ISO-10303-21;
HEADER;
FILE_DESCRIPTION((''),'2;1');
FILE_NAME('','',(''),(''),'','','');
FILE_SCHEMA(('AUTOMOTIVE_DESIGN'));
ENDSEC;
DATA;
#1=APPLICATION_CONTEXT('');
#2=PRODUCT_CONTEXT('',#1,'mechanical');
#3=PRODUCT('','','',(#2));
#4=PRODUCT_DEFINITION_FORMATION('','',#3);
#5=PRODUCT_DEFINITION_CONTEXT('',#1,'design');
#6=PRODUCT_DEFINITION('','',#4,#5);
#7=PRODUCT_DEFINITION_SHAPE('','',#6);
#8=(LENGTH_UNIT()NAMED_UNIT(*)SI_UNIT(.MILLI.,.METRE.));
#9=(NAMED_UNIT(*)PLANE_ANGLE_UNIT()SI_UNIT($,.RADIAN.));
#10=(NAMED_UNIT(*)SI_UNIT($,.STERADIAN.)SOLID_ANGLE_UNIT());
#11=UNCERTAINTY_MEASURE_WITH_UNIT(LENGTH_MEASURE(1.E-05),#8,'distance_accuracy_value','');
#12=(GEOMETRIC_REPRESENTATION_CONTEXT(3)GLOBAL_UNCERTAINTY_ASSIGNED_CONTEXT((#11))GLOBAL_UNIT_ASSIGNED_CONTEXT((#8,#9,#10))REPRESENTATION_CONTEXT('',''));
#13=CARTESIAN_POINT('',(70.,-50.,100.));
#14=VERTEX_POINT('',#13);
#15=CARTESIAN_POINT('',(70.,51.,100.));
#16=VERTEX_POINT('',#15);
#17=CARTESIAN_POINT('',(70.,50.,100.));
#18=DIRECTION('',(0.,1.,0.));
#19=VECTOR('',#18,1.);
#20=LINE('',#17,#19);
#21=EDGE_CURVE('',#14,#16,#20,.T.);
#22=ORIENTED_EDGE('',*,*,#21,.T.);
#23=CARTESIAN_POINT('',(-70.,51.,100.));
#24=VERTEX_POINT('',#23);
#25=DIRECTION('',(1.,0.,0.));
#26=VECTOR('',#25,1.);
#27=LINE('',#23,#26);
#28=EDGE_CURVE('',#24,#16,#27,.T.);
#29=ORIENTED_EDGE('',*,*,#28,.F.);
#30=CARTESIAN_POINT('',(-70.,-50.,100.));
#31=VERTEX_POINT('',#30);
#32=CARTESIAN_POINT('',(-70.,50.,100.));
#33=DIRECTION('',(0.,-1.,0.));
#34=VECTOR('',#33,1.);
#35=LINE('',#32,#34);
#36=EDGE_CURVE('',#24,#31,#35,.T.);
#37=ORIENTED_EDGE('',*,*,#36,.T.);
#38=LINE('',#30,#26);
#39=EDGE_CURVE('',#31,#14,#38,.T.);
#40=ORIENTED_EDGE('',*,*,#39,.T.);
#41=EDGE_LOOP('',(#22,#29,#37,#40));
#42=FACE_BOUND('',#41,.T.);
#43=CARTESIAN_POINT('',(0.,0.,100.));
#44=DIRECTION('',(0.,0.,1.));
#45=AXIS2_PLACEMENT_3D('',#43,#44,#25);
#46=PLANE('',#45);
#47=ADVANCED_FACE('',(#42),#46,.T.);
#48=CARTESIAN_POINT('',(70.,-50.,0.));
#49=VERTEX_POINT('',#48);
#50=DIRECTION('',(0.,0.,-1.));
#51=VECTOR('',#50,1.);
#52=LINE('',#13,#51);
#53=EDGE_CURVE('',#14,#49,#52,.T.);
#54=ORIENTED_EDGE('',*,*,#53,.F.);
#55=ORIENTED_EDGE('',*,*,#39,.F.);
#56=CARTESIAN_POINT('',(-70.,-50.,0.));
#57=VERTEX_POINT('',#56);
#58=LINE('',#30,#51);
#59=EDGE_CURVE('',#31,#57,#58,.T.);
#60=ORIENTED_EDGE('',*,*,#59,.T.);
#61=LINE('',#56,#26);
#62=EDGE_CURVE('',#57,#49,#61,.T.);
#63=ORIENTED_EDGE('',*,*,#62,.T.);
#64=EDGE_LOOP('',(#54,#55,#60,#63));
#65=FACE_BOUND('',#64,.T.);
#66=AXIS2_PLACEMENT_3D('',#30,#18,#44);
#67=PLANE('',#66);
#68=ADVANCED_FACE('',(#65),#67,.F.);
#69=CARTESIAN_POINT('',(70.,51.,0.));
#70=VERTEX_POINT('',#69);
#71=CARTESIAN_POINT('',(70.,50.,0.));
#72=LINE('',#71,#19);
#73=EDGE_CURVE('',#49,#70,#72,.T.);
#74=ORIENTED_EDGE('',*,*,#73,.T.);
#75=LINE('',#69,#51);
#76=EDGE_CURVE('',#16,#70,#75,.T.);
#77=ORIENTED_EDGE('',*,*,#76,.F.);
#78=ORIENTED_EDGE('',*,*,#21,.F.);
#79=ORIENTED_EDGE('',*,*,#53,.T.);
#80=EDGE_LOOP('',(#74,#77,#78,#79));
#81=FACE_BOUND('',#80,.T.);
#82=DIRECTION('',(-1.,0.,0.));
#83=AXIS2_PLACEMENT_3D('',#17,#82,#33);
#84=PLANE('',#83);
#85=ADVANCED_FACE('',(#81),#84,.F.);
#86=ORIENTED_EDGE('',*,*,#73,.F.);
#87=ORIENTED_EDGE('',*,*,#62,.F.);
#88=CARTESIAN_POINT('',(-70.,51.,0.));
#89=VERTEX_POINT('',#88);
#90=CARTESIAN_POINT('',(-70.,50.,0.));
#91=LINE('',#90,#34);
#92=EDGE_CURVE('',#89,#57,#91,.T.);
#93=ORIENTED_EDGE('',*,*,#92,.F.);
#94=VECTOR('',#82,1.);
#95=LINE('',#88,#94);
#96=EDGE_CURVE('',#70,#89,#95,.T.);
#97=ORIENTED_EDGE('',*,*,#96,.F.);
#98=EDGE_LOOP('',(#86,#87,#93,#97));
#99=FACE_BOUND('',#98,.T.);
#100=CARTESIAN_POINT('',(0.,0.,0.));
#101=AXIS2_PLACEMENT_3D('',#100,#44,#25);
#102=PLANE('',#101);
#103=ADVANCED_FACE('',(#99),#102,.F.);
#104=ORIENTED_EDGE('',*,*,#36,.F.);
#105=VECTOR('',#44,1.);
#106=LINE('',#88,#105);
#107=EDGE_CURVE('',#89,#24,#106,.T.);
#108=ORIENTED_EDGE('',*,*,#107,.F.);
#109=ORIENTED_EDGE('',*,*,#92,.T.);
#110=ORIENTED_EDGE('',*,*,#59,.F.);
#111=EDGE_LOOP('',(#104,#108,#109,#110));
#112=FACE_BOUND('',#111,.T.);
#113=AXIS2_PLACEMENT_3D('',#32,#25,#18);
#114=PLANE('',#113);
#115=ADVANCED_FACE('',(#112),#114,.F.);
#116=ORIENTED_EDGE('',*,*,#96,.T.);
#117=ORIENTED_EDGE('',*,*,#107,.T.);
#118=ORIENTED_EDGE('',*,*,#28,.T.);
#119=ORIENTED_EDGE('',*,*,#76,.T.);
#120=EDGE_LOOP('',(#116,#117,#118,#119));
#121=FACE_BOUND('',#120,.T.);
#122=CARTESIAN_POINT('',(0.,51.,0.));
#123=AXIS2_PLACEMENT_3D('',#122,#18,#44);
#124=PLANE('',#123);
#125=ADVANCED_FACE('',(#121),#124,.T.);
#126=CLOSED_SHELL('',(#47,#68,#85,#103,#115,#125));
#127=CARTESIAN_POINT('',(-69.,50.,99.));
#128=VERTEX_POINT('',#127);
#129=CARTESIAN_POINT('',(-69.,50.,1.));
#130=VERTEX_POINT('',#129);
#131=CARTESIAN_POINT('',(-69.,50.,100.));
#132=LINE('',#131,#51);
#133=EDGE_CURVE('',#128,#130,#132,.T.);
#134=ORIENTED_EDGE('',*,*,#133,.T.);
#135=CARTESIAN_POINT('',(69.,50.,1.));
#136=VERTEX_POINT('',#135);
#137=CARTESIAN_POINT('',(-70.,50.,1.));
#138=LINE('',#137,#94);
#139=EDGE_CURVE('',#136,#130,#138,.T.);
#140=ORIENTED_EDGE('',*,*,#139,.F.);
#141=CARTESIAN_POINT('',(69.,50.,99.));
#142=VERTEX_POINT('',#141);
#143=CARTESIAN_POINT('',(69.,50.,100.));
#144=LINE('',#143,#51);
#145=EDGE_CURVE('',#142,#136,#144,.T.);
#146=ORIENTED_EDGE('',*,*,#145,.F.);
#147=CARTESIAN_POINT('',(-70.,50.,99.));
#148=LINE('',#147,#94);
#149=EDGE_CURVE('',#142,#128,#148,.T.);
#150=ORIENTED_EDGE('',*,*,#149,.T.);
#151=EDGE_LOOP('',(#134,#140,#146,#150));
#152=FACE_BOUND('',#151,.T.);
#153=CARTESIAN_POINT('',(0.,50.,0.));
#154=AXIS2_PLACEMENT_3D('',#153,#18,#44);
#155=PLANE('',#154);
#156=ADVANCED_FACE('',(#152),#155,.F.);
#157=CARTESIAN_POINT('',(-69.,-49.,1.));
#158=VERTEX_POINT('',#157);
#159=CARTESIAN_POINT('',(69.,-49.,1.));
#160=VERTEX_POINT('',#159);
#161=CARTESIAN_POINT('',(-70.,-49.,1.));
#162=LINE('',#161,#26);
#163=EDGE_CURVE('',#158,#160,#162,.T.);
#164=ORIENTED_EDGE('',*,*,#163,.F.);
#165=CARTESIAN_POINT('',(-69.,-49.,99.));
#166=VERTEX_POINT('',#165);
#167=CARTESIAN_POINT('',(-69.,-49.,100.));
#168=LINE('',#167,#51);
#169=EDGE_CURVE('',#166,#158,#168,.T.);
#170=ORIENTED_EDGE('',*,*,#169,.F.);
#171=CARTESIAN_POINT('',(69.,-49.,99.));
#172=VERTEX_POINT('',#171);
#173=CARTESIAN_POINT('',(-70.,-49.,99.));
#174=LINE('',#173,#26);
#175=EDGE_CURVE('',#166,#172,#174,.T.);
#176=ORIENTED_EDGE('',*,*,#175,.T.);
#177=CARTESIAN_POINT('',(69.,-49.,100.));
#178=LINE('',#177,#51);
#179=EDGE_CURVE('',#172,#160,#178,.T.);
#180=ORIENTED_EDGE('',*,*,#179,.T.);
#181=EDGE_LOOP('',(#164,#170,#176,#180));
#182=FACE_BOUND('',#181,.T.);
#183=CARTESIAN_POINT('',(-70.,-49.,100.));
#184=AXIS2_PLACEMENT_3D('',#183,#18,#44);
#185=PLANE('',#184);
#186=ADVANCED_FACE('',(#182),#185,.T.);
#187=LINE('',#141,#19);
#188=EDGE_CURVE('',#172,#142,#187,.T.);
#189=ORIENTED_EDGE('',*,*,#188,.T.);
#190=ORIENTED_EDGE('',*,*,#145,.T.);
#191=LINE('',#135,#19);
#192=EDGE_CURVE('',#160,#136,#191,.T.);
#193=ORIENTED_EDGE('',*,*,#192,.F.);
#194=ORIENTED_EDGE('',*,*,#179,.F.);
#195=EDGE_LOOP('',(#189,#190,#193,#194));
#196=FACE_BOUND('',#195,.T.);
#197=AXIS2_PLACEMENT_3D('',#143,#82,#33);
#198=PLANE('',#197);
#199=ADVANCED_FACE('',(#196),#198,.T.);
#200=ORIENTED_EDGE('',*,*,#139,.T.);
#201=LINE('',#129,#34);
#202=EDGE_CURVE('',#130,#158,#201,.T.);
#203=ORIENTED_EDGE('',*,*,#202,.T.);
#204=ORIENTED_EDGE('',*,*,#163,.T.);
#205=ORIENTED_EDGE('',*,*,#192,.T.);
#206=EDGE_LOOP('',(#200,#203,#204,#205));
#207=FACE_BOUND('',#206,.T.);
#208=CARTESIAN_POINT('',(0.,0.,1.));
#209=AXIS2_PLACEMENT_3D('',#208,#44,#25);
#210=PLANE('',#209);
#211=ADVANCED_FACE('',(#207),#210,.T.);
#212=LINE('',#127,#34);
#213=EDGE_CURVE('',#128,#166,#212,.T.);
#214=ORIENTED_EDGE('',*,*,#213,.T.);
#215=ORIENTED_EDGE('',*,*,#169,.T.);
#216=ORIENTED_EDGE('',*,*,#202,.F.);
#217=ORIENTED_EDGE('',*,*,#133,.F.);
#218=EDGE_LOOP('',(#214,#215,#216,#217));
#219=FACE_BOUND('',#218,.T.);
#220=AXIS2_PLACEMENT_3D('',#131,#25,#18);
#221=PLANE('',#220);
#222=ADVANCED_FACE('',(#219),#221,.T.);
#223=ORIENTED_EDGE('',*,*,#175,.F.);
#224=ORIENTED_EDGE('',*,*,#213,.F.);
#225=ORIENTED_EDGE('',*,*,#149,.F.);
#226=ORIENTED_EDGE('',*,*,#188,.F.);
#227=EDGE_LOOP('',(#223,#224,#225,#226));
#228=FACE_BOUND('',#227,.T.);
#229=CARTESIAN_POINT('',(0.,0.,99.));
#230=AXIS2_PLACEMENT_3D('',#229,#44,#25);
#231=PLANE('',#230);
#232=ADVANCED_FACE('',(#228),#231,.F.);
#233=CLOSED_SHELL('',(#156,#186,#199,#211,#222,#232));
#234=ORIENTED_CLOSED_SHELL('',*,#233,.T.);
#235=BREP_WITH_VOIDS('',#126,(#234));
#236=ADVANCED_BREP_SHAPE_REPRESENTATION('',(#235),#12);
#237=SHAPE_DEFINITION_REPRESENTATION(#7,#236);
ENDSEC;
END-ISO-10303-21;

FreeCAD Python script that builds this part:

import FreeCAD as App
import Part
import Sketcher


def faces_at(feature, points):
    """Names of the faces that lie closest to the given points."""
    faces = feature.Shape.Faces
    near = lambda p: min(range(len(faces)), key=lambda i: faces[i].distToShape(Part.Vertex(*p))[0])
    return sorted({f"Face{near(p) + 1}" for p in points})


def add_polygon(sketch, points):
    """Adds a closed chain of lines whose ends are joined by coincident constraints."""
    first, n = sketch.GeometryCount, len(points)
    for a, b in zip(points, points[1:] + points[:1]):
        sketch.addGeometry(Part.LineSegment(App.Vector(*a, 0), App.Vector(*b, 0)), False)
    for i in range(n):
        sketch.addConstraint(Sketcher.Constraint("Coincident", first + i, 2, first + (i + 1) % n, 1))

doc = App.newDocument("Part")
body = doc.addObject("PartDesign::Body", "Body")

# Sketch on XY plane
sketch1 = body.newObject("Sketcher::SketchObject", "Sketch")
sketch1.AttachmentSupport = (doc.getObject("XY_Plane"), [""])
sketch1.MapMode = "FlatFace"
add_polygon(sketch1, [(-70, 50), (-70, -50), (70, -50), (70, 50)])  # lines 0-3
sketch1.addConstraint([
    Sketcher.Constraint("Vertical", 0),
    Sketcher.Constraint("Horizontal", 1),
    Sketcher.Constraint("Vertical", 2),
    Sketcher.Constraint("Horizontal", 3),
    Sketcher.Constraint("Symmetric", 0, 2, 2, 2, -1, 1),
    Sketcher.Constraint("DistanceX", 1, 1, 1, 2, 140.0),
    Sketcher.Constraint("DistanceY", 0, 2, 0, 1, 100.0),
])
pad1 = body.newObject("PartDesign::Pad", "Pad")
pad1.Profile = sketch1
pad1.Length = 100
doc.recompute()

thickness = body.newObject("PartDesign::Thickness", "Thickness")
thickness.Base = (pad1, faces_at(pad1, [(0, 50, 50)]))
thickness.Value = 1
thickness.Reversed = True
thickness.Join = "Intersection"

# Sketch on XZ plane
sketch2 = body.newObject("Sketcher::SketchObject", "Sketch001")
sketch2.AttachmentSupport = (doc.getObject("XZ_Plane"), [""])
sketch2.MapMode = "FlatFace"
sketch2.AttachmentOffset = App.Placement(App.Vector(0, 0, -50), App.Rotation())
add_polygon(sketch2, [(-70, 0), (-70, 100), (70, 100), (70, 0)])  # lines 0-3
sketch2.addConstraint([
    Sketcher.Constraint("Vertical", 0),
    Sketcher.Constraint("Horizontal", 1),
    Sketcher.Constraint("Vertical", 2),
    Sketcher.Constraint("Horizontal", 3),
    Sketcher.Constraint("Symmetric", 2, 2, 3, 2, -1, 1),
    Sketcher.Constraint("DistanceX", 1, 1, 1, 2, 140.0),
    Sketcher.Constraint("DistanceY", 0, 1, 0, 2, 100.0),
])
pad2 = body.newObject("PartDesign::Pad", "Pad001")
pad2.Profile = sketch2
pad2.Length = 1
pad2.Reversed = True

doc.recompute()
